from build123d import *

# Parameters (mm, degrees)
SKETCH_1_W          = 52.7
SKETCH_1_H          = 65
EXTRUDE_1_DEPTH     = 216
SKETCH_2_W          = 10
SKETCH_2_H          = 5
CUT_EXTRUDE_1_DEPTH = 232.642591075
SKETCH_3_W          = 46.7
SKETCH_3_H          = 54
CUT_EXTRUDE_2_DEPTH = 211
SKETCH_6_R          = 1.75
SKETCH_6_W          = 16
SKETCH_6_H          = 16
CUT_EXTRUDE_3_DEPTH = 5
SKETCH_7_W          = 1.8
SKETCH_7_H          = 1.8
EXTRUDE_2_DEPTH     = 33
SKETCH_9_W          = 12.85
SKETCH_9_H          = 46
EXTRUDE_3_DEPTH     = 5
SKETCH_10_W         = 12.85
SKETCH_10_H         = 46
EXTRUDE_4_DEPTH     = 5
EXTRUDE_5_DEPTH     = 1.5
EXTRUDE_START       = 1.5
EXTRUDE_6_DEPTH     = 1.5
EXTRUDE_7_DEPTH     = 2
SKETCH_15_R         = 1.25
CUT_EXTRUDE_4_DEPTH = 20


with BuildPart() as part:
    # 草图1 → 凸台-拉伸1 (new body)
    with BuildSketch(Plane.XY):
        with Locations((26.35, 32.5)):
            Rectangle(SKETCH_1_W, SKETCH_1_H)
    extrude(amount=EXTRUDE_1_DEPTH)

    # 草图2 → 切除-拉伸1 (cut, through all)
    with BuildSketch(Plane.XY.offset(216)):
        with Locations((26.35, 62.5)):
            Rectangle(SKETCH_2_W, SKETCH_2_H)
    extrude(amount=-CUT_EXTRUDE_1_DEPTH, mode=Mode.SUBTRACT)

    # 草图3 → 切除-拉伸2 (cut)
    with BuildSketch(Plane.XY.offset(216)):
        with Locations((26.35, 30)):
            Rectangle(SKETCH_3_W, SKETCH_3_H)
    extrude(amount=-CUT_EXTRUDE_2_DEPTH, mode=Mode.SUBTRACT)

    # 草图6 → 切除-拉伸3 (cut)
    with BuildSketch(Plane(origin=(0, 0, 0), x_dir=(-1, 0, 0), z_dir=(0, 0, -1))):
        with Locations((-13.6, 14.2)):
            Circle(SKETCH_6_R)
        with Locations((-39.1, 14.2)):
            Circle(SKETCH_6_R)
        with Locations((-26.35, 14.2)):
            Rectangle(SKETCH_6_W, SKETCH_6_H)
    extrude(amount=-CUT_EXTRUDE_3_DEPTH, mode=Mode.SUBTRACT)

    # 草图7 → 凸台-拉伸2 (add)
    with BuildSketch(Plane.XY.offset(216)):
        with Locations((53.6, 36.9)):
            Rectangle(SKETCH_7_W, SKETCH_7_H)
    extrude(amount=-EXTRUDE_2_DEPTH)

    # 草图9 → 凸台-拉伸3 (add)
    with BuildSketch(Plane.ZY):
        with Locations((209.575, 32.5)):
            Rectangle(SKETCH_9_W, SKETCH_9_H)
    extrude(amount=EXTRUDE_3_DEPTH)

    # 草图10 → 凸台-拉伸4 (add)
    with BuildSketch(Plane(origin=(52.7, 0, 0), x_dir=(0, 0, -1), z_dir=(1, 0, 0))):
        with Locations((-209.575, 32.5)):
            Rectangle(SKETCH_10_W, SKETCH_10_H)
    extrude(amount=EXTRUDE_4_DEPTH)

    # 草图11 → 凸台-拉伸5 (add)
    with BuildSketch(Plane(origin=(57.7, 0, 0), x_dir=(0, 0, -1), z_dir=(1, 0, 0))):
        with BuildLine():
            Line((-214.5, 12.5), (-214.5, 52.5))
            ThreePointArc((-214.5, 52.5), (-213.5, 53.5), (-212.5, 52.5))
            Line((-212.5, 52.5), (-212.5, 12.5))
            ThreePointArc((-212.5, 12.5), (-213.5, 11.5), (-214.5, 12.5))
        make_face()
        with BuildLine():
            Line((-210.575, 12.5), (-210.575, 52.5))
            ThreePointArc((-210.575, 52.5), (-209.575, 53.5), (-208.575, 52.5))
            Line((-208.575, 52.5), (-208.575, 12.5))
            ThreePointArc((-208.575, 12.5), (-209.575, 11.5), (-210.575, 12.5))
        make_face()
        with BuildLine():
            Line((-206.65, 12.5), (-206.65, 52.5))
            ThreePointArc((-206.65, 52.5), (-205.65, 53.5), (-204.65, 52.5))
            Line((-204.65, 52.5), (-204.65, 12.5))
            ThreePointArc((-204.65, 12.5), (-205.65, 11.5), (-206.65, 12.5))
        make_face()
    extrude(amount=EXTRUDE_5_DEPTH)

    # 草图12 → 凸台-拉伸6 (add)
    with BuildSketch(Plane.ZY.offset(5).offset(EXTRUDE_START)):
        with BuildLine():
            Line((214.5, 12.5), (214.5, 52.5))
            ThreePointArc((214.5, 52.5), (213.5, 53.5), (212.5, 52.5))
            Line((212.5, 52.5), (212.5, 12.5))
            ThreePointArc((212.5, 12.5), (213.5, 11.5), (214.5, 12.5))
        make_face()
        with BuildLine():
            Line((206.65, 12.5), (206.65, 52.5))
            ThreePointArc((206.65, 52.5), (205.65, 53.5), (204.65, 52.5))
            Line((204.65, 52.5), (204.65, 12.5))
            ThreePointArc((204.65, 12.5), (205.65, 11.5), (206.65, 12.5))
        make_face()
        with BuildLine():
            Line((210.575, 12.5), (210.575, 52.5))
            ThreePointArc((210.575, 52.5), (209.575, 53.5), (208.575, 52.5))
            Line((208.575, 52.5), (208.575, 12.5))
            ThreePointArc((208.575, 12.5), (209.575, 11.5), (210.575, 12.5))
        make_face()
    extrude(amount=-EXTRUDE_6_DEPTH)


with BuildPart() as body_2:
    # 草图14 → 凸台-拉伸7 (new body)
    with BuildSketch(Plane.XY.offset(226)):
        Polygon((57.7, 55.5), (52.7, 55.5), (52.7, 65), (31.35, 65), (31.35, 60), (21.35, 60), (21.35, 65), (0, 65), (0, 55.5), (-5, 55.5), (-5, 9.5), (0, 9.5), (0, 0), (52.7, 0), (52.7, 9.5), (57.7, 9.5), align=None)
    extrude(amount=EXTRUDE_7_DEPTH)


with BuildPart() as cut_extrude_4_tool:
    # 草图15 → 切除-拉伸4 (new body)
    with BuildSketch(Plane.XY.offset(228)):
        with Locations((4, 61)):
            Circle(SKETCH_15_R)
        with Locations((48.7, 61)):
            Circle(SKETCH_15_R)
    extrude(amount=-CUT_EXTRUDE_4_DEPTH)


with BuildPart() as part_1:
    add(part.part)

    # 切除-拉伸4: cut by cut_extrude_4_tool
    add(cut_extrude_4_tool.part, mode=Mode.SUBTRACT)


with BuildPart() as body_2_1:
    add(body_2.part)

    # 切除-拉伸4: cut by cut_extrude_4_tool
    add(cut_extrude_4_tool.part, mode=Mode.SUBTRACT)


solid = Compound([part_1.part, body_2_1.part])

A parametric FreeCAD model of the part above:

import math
import FreeCAD as App
import Part
import Sketcher

V = App.Vector

doc = App.newDocument("Part")
body = doc.addObject("PartDesign::Body", "Body")

# Sketch on XY plane
sketch1 = body.newObject("Sketcher::SketchObject", "Sketch")
sketch1.AttachmentSupport = (doc.getObject("XY_Plane"), [""])
sketch1.MapMode = "FlatFace"
sketch1.addGeometry(Part.LineSegment(V(0, 65, 0), V(0, 0, 0)), False)
sketch1.addGeometry(Part.LineSegment(V(0, 0, 0), V(52.7, 0, 0)), False)
sketch1.addGeometry(Part.LineSegment(V(52.7, 0, 0), V(52.7, 65, 0)), False)
sketch1.addGeometry(Part.LineSegment(V(52.7, 65, 0), V(0, 65, 0)), False)
sketch1.addConstraint(Sketcher.Constraint("Coincident", 0, 2, 1, 1))
sketch1.addConstraint(Sketcher.Constraint("Coincident", 1, 2, 2, 1))
sketch1.addConstraint(Sketcher.Constraint("Coincident", 2, 2, 3, 1))
sketch1.addConstraint(Sketcher.Constraint("Coincident", 3, 2, 0, 1))
sketch1.addConstraint(Sketcher.Constraint("Vertical", 0))
sketch1.addConstraint(Sketcher.Constraint("Horizontal", 1))
sketch1.addConstraint(Sketcher.Constraint("Vertical", 2))
sketch1.addConstraint(Sketcher.Constraint("Horizontal", 3))
sketch1.addConstraint(Sketcher.Constraint("Coincident", 0, 2, -1, 1))
sketch1.addConstraint(Sketcher.Constraint("DistanceY", 0, 2, 0, 1, 65.0))
sketch1.addConstraint(Sketcher.Constraint("DistanceX", 1, 1, 1, 2, 52.7))
pad1 = body.newObject("PartDesign::Pad", "Pad")
pad1.Profile = sketch1
pad1.Length = 216

# Sketch on XY plane
sketch2 = body.newObject("Sketcher::SketchObject", "Sketch001")
sketch2.AttachmentSupport = (doc.getObject("XY_Plane"), [""])
sketch2.MapMode = "FlatFace"
sketch2.AttachmentOffset = App.Placement(V(0, 0, 216), App.Rotation())
sketch2.addGeometry(Part.LineSegment(V(21.35, 65, 0), V(21.35, 60, 0)), False)
sketch2.addGeometry(Part.LineSegment(V(21.35, 60, 0), V(31.35, 60, 0)), False)
sketch2.addGeometry(Part.LineSegment(V(31.35, 60, 0), V(31.35, 65, 0)), False)
sketch2.addGeometry(Part.LineSegment(V(31.35, 65, 0), V(21.35, 65, 0)), False)
sketch2.addConstraint(Sketcher.Constraint("Coincident", 0, 2, 1, 1))
sketch2.addConstraint(Sketcher.Constraint("Coincident", 1, 2, 2, 1))
sketch2.addConstraint(Sketcher.Constraint("Coincident", 2, 2, 3, 1))
sketch2.addConstraint(Sketcher.Constraint("Coincident", 3, 2, 0, 1))
sketch2.addConstraint(Sketcher.Constraint("Vertical", 0))
sketch2.addConstraint(Sketcher.Constraint("Horizontal", 1))
sketch2.addConstraint(Sketcher.Constraint("Vertical", 2))
sketch2.addConstraint(Sketcher.Constraint("Horizontal", 3))
sketch2.addConstraint(Sketcher.Constraint("DistanceX", 1, 1, 1, 2, 10.0))
sketch2.addConstraint(Sketcher.Constraint("DistanceY", 0, 2, 0, 1, 5.0))
sketch2.addConstraint(Sketcher.Constraint("DistanceY", -1, 1, 0, 2, 60.0))
sketch2.addConstraint(Sketcher.Constraint("DistanceX", -1, 1, 0, 2, 21.35))
pocket1 = body.newObject("PartDesign::Pocket", "Pocket")
pocket1.Profile = sketch2
pocket1.Type = "ThroughAll"

# Sketch on XY plane
sketch3 = body.newObject("Sketcher::SketchObject", "Sketch002")
sketch3.AttachmentSupport = (doc.getObject("XY_Plane"), [""])
sketch3.MapMode = "FlatFace"
sketch3.AttachmentOffset = App.Placement(V(0, 0, 216), App.Rotation())
sketch3.addGeometry(Part.LineSegment(V(3, 57, 0), V(3, 3, 0)), False)
sketch3.addGeometry(Part.LineSegment(V(3, 3, 0), V(49.7, 3, 0)), False)
sketch3.addGeometry(Part.LineSegment(V(49.7, 3, 0), V(49.7, 57, 0)), False)
sketch3.addGeometry(Part.LineSegment(V(49.7, 57, 0), V(3, 57, 0)), False)
sketch3.addConstraint(Sketcher.Constraint("Coincident", 0, 2, 1, 1))
sketch3.addConstraint(Sketcher.Constraint("Coincident", 1, 2, 2, 1))
sketch3.addConstraint(Sketcher.Constraint("Coincident", 2, 2, 3, 1))
sketch3.addConstraint(Sketcher.Constraint("Coincident", 3, 2, 0, 1))
sketch3.addConstraint(Sketcher.Constraint("Vertical", 0))
sketch3.addConstraint(Sketcher.Constraint("Horizontal", 1))
sketch3.addConstraint(Sketcher.Constraint("Vertical", 2))
sketch3.addConstraint(Sketcher.Constraint("Horizontal", 3))
sketch3.addConstraint(Sketcher.Constraint("DistanceY", 0, 2, 0, 1, 54.0))
sketch3.addConstraint(Sketcher.Constraint("DistanceX", 1, 1, 1, 2, 46.7))
sketch3.addConstraint(Sketcher.Constraint("DistanceX", -1, 1, 0, 2, 3.0))
sketch3.addConstraint(Sketcher.Constraint("DistanceY", -1, 1, 0, 2, 3.0))
pocket2 = body.newObject("PartDesign::Pocket", "Pocket001")
pocket2.Profile = sketch3
pocket2.Length = 211

# Sketch on XY plane
sketch4 = body.newObject("Sketcher::SketchObject", "Sketch003")
sketch4.AttachmentSupport = (doc.getObject("XY_Plane"), [""])
sketch4.MapMode = "FlatFace"
sketch4.addGeometry(Part.Circle(V(13.6, 14.2, 0), V(0, 0, 1), 1.75), False)
sketch4.addGeometry(Part.Circle(V(39.1, 14.2, 0), V(0, 0, 1), 1.75), False)
sketch4.addGeometry(Part.LineSegment(V(34.35, 22.2, 0), V(34.35, 6.2, 0)), False)
sketch4.addGeometry(Part.LineSegment(V(34.35, 6.2, 0), V(18.35, 6.2, 0)), False)
sketch4.addGeometry(Part.LineSegment(V(18.35, 6.2, 0), V(18.35, 22.2, 0)), False)
sketch4.addGeometry(Part.LineSegment(V(18.35, 22.2, 0), V(34.35, 22.2, 0)), False)
sketch4.addConstraint(Sketcher.Constraint("Coincident", 2, 2, 3, 1))
sketch4.addConstraint(Sketcher.Constraint("Coincident", 3, 2, 4, 1))
sketch4.addConstraint(Sketcher.Constraint("Coincident", 4, 2, 5, 1))
sketch4.addConstraint(Sketcher.Constraint("Coincident", 5, 2, 2, 1))
sketch4.addConstraint(Sketcher.Constraint("Vertical", 2))
sketch4.addConstraint(Sketcher.Constraint("Horizontal", 3))
sketch4.addConstraint(Sketcher.Constraint("Vertical", 4))
sketch4.addConstraint(Sketcher.Constraint("Horizontal", 5))
sketch4.addConstraint(Sketcher.Constraint("Equal", 0, 1))
sketch4.addConstraint(Sketcher.Constraint("Horizontal", 0, 3, 1, 3))
sketch4.addConstraint(Sketcher.Constraint("Equal", 5, 2))
sketch4.addConstraint(Sketcher.Constraint("Diameter", 0, 3.5))
sketch4.addConstraint(Sketcher.Constraint("DistanceX", 3, 2, 3, 1, 16.0))
sketch4.addConstraint(Sketcher.Constraint("DistanceY", 2, 2, 1, 3, 8.0))
sketch4.addConstraint(Sketcher.Constraint("DistanceX", -1, 1, 0, 3, 13.6))
sketch4.addConstraint(Sketcher.Constraint("DistanceY", -1, 1, 0, 3, 14.2))
sketch4.addConstraint(Sketcher.Constraint("DistanceX", -1, 1, 1, 3, 39.1))
sketch4.addConstraint(Sketcher.Constraint("DistanceX", -1, 1, 2, 2, 34.35))
pocket3 = body.newObject("PartDesign::Pocket", "Pocket002")
pocket3.Profile = sketch4
pocket3.Length = 5
pocket3.Reversed = True

# Sketch on XY plane
sketch5 = body.newObject("Sketcher::SketchObject", "Sketch004")
sketch5.AttachmentSupport = (doc.getObject("XY_Plane"), [""])
sketch5.MapMode = "FlatFace"
sketch5.AttachmentOffset = App.Placement(V(0, 0, 216), App.Rotation())
sketch5.addGeometry(Part.LineSegment(V(52.7, 37.8, 0), V(52.7, 36, 0)), False)
sketch5.addGeometry(Part.LineSegment(V(52.7, 36, 0), V(54.5, 36, 0)), False)
sketch5.addGeometry(Part.LineSegment(V(54.5, 36, 0), V(54.5, 37.8, 0)), False)
sketch5.addGeometry(Part.LineSegment(V(54.5, 37.8, 0), V(52.7, 37.8, 0)), False)
sketch5.addConstraint(Sketcher.Constraint("Coincident", 0, 2, 1, 1))
sketch5.addConstraint(Sketcher.Constraint("Coincident", 1, 2, 2, 1))
sketch5.addConstraint(Sketcher.Constraint("Coincident", 2, 2, 3, 1))
sketch5.addConstraint(Sketcher.Constraint("Coincident", 3, 2, 0, 1))
sketch5.addConstraint(Sketcher.Constraint("Vertical", 0))
sketch5.addConstraint(Sketcher.Constraint("Horizontal", 1))
sketch5.addConstraint(Sketcher.Constraint("Vertical", 2))
sketch5.addConstraint(Sketcher.Constraint("Horizontal", 3))
sketch5.addConstraint(Sketcher.Constraint("Equal", 3, 0))
sketch5.addConstraint(Sketcher.Constraint("DistanceX", 1, 1, 1, 2, 1.8))
sketch5.addConstraint(Sketcher.Constraint("DistanceY", -1, 1, 0, 2, 36.0))
sketch5.addConstraint(Sketcher.Constraint("DistanceX", -1, 1, 0, 2, 52.7))
pad2 = body.newObject("PartDesign::Pad", "Pad001")
pad2.Profile = sketch5
pad2.Length = 33
pad2.Reversed = True

# Sketch on YZ plane
sketch6 = body.newObject("Sketcher::SketchObject", "Sketch005")
sketch6.AttachmentSupport = (doc.getObject("YZ_Plane"), [""])
sketch6.MapMode = "FlatFace"
sketch6.addGeometry(Part.LineSegment(V(55.5, 203.15, 0), V(9.5, 203.15, 0)), False)
sketch6.addGeometry(Part.LineSegment(V(9.5, 203.15, 0), V(9.5, 216, 0)), False)
sketch6.addGeometry(Part.LineSegment(V(9.5, 216, 0), V(55.5, 216, 0)), False)
sketch6.addGeometry(Part.LineSegment(V(55.5, 216, 0), V(55.5, 203.15, 0)), False)
sketch6.addConstraint(Sketcher.Constraint("Coincident", 0, 2, 1, 1))
sketch6.addConstraint(Sketcher.Constraint("Coincident", 1, 2, 2, 1))
sketch6.addConstraint(Sketcher.Constraint("Coincident", 2, 2, 3, 1))
sketch6.addConstraint(Sketcher.Constraint("Coincident", 3, 2, 0, 1))
sketch6.addConstraint(Sketcher.Constraint("Horizontal", 0))
sketch6.addConstraint(Sketcher.Constraint("Vertical", 1))
sketch6.addConstraint(Sketcher.Constraint("Horizontal", 2))
sketch6.addConstraint(Sketcher.Constraint("Vertical", 3))
sketch6.addConstraint(Sketcher.Constraint("DistanceX", 0, 2, 0, 1, 46.0))
sketch6.addConstraint(Sketcher.Constraint("DistanceY", -1, 1, 1, 2, 216.0))
sketch6.addConstraint(Sketcher.Constraint("DistanceY", 1, 1, 1, 2, 12.85))
sketch6.addConstraint(Sketcher.Constraint("DistanceX", -1, 1, 0, 2, 9.5))
pad3 = body.newObject("PartDesign::Pad", "Pad002")
pad3.Profile = sketch6
pad3.Length = 5
pad3.Reversed = True

# Sketch on YZ plane
sketch7 = body.newObject("Sketcher::SketchObject", "Sketch006")
sketch7.AttachmentSupport = (doc.getObject("YZ_Plane"), [""])
sketch7.MapMode = "FlatFace"
sketch7.AttachmentOffset = App.Placement(V(0, 0, 52.7), App.Rotation())
sketch7.addGeometry(Part.LineSegment(V(55.5, 216, 0), V(9.5, 216, 0)), False)
sketch7.addGeometry(Part.LineSegment(V(9.5, 216, 0), V(9.5, 203.15, 0)), False)
sketch7.addGeometry(Part.LineSegment(V(9.5, 203.15, 0), V(55.5, 203.15, 0)), False)
sketch7.addGeometry(Part.LineSegment(V(55.5, 203.15, 0), V(55.5, 216, 0)), False)
sketch7.addConstraint(Sketcher.Constraint("Coincident", 0, 2, 1, 1))
sketch7.addConstraint(Sketcher.Constraint("Coincident", 1, 2, 2, 1))
sketch7.addConstraint(Sketcher.Constraint("Coincident", 2, 2, 3, 1))
sketch7.addConstraint(Sketcher.Constraint("Coincident", 3, 2, 0, 1))
sketch7.addConstraint(Sketcher.Constraint("Horizontal", 0))
sketch7.addConstraint(Sketcher.Constraint("Vertical", 1))
sketch7.addConstraint(Sketcher.Constraint("Horizontal", 2))
sketch7.addConstraint(Sketcher.Constraint("Vertical", 3))
sketch7.addConstraint(Sketcher.Constraint("DistanceX", 0, 2, 0, 1, 46.0))
sketch7.addConstraint(Sketcher.Constraint("DistanceY", -1, 1, 0, 2, 216.0))
sketch7.addConstraint(Sketcher.Constraint("DistanceY", 1, 2, 1, 1, 12.85))
sketch7.addConstraint(Sketcher.Constraint("DistanceX", -1, 1, 0, 2, 9.5))
pad4 = body.newObject("PartDesign::Pad", "Pad003")
pad4.Profile = sketch7
pad4.Length = 5

# Sketch on YZ plane
sketch8 = body.newObject("Sketcher::SketchObject", "Sketch007")
sketch8.AttachmentSupport = (doc.getObject("YZ_Plane"), [""])
sketch8.MapMode = "FlatFace"
sketch8.AttachmentOffset = App.Placement(V(0, 0, 57.7), App.Rotation())
sketch8.addGeometry(Part.LineSegment(V(52.5, 214.5, 0), V(12.5, 214.5, 0)), False)
sketch8.addGeometry(Part.ArcOfCircle(Part.Circle(V(12.5, 213.5, 0), V(0, 0, 1), 1), math.radians(90), math.radians(270)), False)
sketch8.addGeometry(Part.LineSegment(V(12.5, 212.5, 0), V(52.5, 212.5, 0)), False)
sketch8.addGeometry(Part.ArcOfCircle(Part.Circle(V(52.5, 213.5, 0), V(0, 0, 1), 1), math.radians(-90), math.radians(90)), False)
sketch8.addGeometry(Part.LineSegment(V(52.5, 210.575, 0), V(12.5, 210.575, 0)), False)
sketch8.addGeometry(Part.ArcOfCircle(Part.Circle(V(12.5, 209.575, 0), V(0, 0, 1), 1), math.radians(90), math.radians(270)), False)
sketch8.addGeometry(Part.LineSegment(V(12.5, 208.575, 0), V(52.5, 208.575, 0)), False)
sketch8.addGeometry(Part.ArcOfCircle(Part.Circle(V(52.5, 209.575, 0), V(0, 0, 1), 1), math.radians(-90), math.radians(90)), False)
sketch8.addGeometry(Part.LineSegment(V(52.5, 206.65, 0), V(12.5, 206.65, 0)), False)
sketch8.addGeometry(Part.ArcOfCircle(Part.Circle(V(12.5, 205.65, 0), V(0, 0, 1), 1), math.radians(90), math.radians(270)), False)
sketch8.addGeometry(Part.LineSegment(V(12.5, 204.65, 0), V(52.5, 204.65, 0)), False)
sketch8.addGeometry(Part.ArcOfCircle(Part.Circle(V(52.5, 205.65, 0), V(0, 0, 1), 1), math.radians(-90), math.radians(90)), False)
sketch8.addConstraint(Sketcher.Constraint("Tangent", 0, 2, 1, 1))
sketch8.addConstraint(Sketcher.Constraint("Tangent", 1, 2, 2, 1))
sketch8.addConstraint(Sketcher.Constraint("Tangent", 2, 2, 3, 1))
sketch8.addConstraint(Sketcher.Constraint("Tangent", 3, 2, 0, 1))
sketch8.addConstraint(Sketcher.Constraint("Tangent", 4, 2, 5, 1))
sketch8.addConstraint(Sketcher.Constraint("Tangent", 5, 2, 6, 1))
sketch8.addConstraint(Sketcher.Constraint("Tangent", 6, 2, 7, 1))
sketch8.addConstraint(Sketcher.Constraint("Tangent", 7, 2, 4, 1))
sketch8.addConstraint(Sketcher.Constraint("Tangent", 8, 2, 9, 1))
sketch8.addConstraint(Sketcher.Constraint("Tangent", 9, 2, 10, 1))
sketch8.addConstraint(Sketcher.Constraint("Tangent", 10, 2, 11, 1))
sketch8.addConstraint(Sketcher.Constraint("Tangent", 11, 2, 8, 1))
sketch8.addConstraint(Sketcher.Constraint("Horizontal", 0))
sketch8.addConstraint(Sketcher.Constraint("Horizontal", 2))
sketch8.addConstraint(Sketcher.Constraint("Horizontal", 4))
sketch8.addConstraint(Sketcher.Constraint("Horizontal", 6))
sketch8.addConstraint(Sketcher.Constraint("Horizontal", 8))
sketch8.addConstraint(Sketcher.Constraint("Horizontal", 10))
sketch8.addConstraint(Sketcher.Constraint("Equal", 3, 5))
sketch8.addConstraint(Sketcher.Constraint("Equal", 7, 9))
sketch8.addConstraint(Sketcher.Constraint("Vertical", 1, 3, 5, 3))
sketch8.addConstraint(Sketcher.Constraint("Vertical", 3, 3, 7, 3))
sketch8.addConstraint(Sketcher.Constraint("Vertical", 5, 3, 9, 3))
sketch8.addConstraint(Sketcher.Constraint("Vertical", 7, 3, 11, 3))
sketch8.addConstraint(Sketcher.Constraint("Radius", 1, 1.0))
sketch8.addConstraint(Sketcher.Constraint("DistanceX", 0, 2, 0, 1, 40.0))
sketch8.addConstraint(Sketcher.Constraint("DistanceX", -1, 1, 1, 3, 12.5))
sketch8.addConstraint(Sketcher.Constraint("DistanceY", -1, 1, 1, 3, 213.5))
sketch8.addConstraint(Sketcher.Constraint("DistanceY", -1, 1, 9, 3, 205.65))
sketch8.addConstraint(Sketcher.Constraint("DistanceY", -1, 1, 5, 3, 209.575))
pad5 = body.newObject("PartDesign::Pad", "Pad004")
pad5.Profile = sketch8
pad5.Length = 1.5

# Sketch on YZ plane
sketch9 = body.newObject("Sketcher::SketchObject", "Sketch008")
sketch9.AttachmentSupport = (doc.getObject("YZ_Plane"), [""])
sketch9.MapMode = "FlatFace"
sketch9.AttachmentOffset = App.Placement(V(0, 0, -6.5), App.Rotation())
sketch9.addGeometry(Part.LineSegment(V(12.5, 214.5, 0), V(52.5, 214.5, 0)), False)
sketch9.addGeometry(Part.ArcOfCircle(Part.Circle(V(52.5, 213.5, 0), V(0, 0, 1), 1), math.radians(-90), math.radians(90)), False)
sketch9.addGeometry(Part.LineSegment(V(52.5, 212.5, 0), V(12.5, 212.5, 0)), False)
sketch9.addGeometry(Part.ArcOfCircle(Part.Circle(V(12.5, 213.5, 0), V(0, 0, 1), 1), math.radians(90), math.radians(270)), False)
sketch9.addGeometry(Part.LineSegment(V(12.5, 206.65, 0), V(52.5, 206.65, 0)), False)
sketch9.addGeometry(Part.ArcOfCircle(Part.Circle(V(52.5, 205.65, 0), V(0, 0, 1), 1), math.radians(-90), math.radians(90)), False)
sketch9.addGeometry(Part.LineSegment(V(52.5, 204.65, 0), V(12.5, 204.65, 0)), False)
sketch9.addGeometry(Part.ArcOfCircle(Part.Circle(V(12.5, 205.65, 0), V(0, 0, 1), 1), math.radians(90), math.radians(270)), False)
sketch9.addGeometry(Part.LineSegment(V(12.5, 210.575, 0), V(52.5, 210.575, 0)), False)
sketch9.addGeometry(Part.ArcOfCircle(Part.Circle(V(52.5, 209.575, 0), V(0, 0, 1), 1), math.radians(-90), math.radians(90)), False)
sketch9.addGeometry(Part.LineSegment(V(52.5, 208.575, 0), V(12.5, 208.575, 0)), False)
sketch9.addGeometry(Part.ArcOfCircle(Part.Circle(V(12.5, 209.575, 0), V(0, 0, 1), 1), math.radians(90), math.radians(270)), False)
sketch9.addConstraint(Sketcher.Constraint("Tangent", 0, 2, 1, 2))
sketch9.addConstraint(Sketcher.Constraint("Tangent", 1, 1, 2, 1))
sketch9.addConstraint(Sketcher.Constraint("Tangent", 2, 2, 3, 2))
sketch9.addConstraint(Sketcher.Constraint("Tangent", 3, 1, 0, 1))
sketch9.addConstraint(Sketcher.Constraint("Tangent", 4, 2, 5, 2))
sketch9.addConstraint(Sketcher.Constraint("Tangent", 5, 1, 6, 1))
sketch9.addConstraint(Sketcher.Constraint("Tangent", 6, 2, 7, 2))
sketch9.addConstraint(Sketcher.Constraint("Tangent", 7, 1, 4, 1))
sketch9.addConstraint(Sketcher.Constraint("Tangent", 8, 2, 9, 2))
sketch9.addConstraint(Sketcher.Constraint("Tangent", 9, 1, 10, 1))
sketch9.addConstraint(Sketcher.Constraint("Tangent", 10, 2, 11, 2))
sketch9.addConstraint(Sketcher.Constraint("Tangent", 11, 1, 8, 1))
sketch9.addConstraint(Sketcher.Constraint("Horizontal", 0))
sketch9.addConstraint(Sketcher.Constraint("Horizontal", 2))
sketch9.addConstraint(Sketcher.Constraint("Horizontal", 4))
sketch9.addConstraint(Sketcher.Constraint("Horizontal", 6))
sketch9.addConstraint(Sketcher.Constraint("Horizontal", 8))
sketch9.addConstraint(Sketcher.Constraint("Horizontal", 10))
sketch9.addConstraint(Sketcher.Constraint("Equal", 3, 5))
sketch9.addConstraint(Sketcher.Constraint("Equal", 7, 9))
sketch9.addConstraint(Sketcher.Constraint("Vertical", 1, 3, 5, 3))
sketch9.addConstraint(Sketcher.Constraint("Vertical", 3, 3, 7, 3))
sketch9.addConstraint(Sketcher.Constraint("Vertical", 5, 3, 9, 3))
sketch9.addConstraint(Sketcher.Constraint("Vertical", 7, 3, 11, 3))
sketch9.addConstraint(Sketcher.Constraint("Radius", 1, 1.0))
sketch9.addConstraint(Sketcher.Constraint("DistanceX", 0, 1, 0, 2, 40.0))
sketch9.addConstraint(Sketcher.Constraint("DistanceX", -1, 1, 1, 3, 52.5))
sketch9.addConstraint(Sketcher.Constraint("DistanceY", -1, 1, 1, 3, 213.5))
sketch9.addConstraint(Sketcher.Constraint("DistanceY", -1, 1, 5, 3, 205.65))
sketch9.addConstraint(Sketcher.Constraint("DistanceY", -1, 1, 9, 3, 209.575))
pad6 = body.newObject("PartDesign::Pad", "Pad005")
pad6.Profile = sketch9
pad6.Length = 1.5
body2 = doc.addObject("PartDesign::Body", "Body001")

# Sketch on XY plane
sketch10 = body2.newObject("Sketcher::SketchObject", "Sketch009")
sketch10.AttachmentSupport = (doc.getObject("XY_Plane001"), [""])
sketch10.MapMode = "FlatFace"
sketch10.AttachmentOffset = App.Placement(V(0, 0, 226), App.Rotation())
sketch10.addGeometry(Part.LineSegment(V(57.7, 55.5, 0), V(52.7, 55.5, 0)), False)
sketch10.addGeometry(Part.LineSegment(V(52.7, 55.5, 0), V(52.7, 65, 0)), False)
sketch10.addGeometry(Part.LineSegment(V(52.7, 65, 0), V(31.35, 65, 0)), False)
sketch10.addGeometry(Part.LineSegment(V(31.35, 65, 0), V(31.35, 60, 0)), False)
sketch10.addGeometry(Part.LineSegment(V(31.35, 60, 0), V(21.35, 60, 0)), False)
sketch10.addGeometry(Part.LineSegment(V(21.35, 60, 0), V(21.35, 65, 0)), False)
sketch10.addGeometry(Part.LineSegment(V(21.35, 65, 0), V(0, 65, 0)), False)
sketch10.addGeometry(Part.LineSegment(V(0, 65, 0), V(0, 55.5, 0)), False)
sketch10.addGeometry(Part.LineSegment(V(0, 55.5, 0), V(-5, 55.5, 0)), False)
sketch10.addGeometry(Part.LineSegment(V(-5, 55.5, 0), V(-5, 9.5, 0)), False)
sketch10.addGeometry(Part.LineSegment(V(-5, 9.5, 0), V(0, 9.5, 0)), False)
sketch10.addGeometry(Part.LineSegment(V(0, 9.5, 0), V(0, 0, 0)), False)
sketch10.addGeometry(Part.LineSegment(V(0, 0, 0), V(52.7, 0, 0)), False)
sketch10.addGeometry(Part.LineSegment(V(52.7, 0, 0), V(52.7, 9.5, 0)), False)
sketch10.addGeometry(Part.LineSegment(V(52.7, 9.5, 0), V(57.7, 9.5, 0)), False)
sketch10.addGeometry(Part.LineSegment(V(57.7, 9.5, 0), V(57.7, 55.5, 0)), False)
sketch10.addConstraint(Sketcher.Constraint("Coincident", 0, 2, 1, 1))
sketch10.addConstraint(Sketcher.Constraint("Coincident", 1, 2, 2, 1))
sketch10.addConstraint(Sketcher.Constraint("Coincident", 2, 2, 3, 1))
sketch10.addConstraint(Sketcher.Constraint("Coincident", 3, 2, 4, 1))
sketch10.addConstraint(Sketcher.Constraint("Coincident", 4, 2, 5, 1))
sketch10.addConstraint(Sketcher.Constraint("Coincident", 5, 2, 6, 1))
sketch10.addConstraint(Sketcher.Constraint("Coincident", 6, 2, 7, 1))
sketch10.addConstraint(Sketcher.Constraint("Coincident", 7, 2, 8, 1))
sketch10.addConstraint(Sketcher.Constraint("Coincident", 8, 2, 9, 1))
sketch10.addConstraint(Sketcher.Constraint("Coincident", 9, 2, 10, 1))
sketch10.addConstraint(Sketcher.Constraint("Coincident", 10, 2, 11, 1))
sketch10.addConstraint(Sketcher.Constraint("Coincident", 11, 2, 12, 1))
sketch10.addConstraint(Sketcher.Constraint("Coincident", 12, 2, 13, 1))
sketch10.addConstraint(Sketcher.Constraint("Coincident", 13, 2, 14, 1))
sketch10.addConstraint(Sketcher.Constraint("Coincident", 14, 2, 15, 1))
sketch10.addConstraint(Sketcher.Constraint("Coincident", 15, 2, 0, 1))
sketch10.addConstraint(Sketcher.Constraint("Horizontal", 0))
sketch10.addConstraint(Sketcher.Constraint("Vertical", 1))
sketch10.addConstraint(Sketcher.Constraint("Horizontal", 2))
sketch10.addConstraint(Sketcher.Constraint("Vertical", 3))
sketch10.addConstraint(Sketcher.Constraint("Horizontal", 4))
sketch10.addConstraint(Sketcher.Constraint("Vertical", 5))
sketch10.addConstraint(Sketcher.Constraint("Horizontal", 6))
sketch10.addConstraint(Sketcher.Constraint("Vertical", 7))
sketch10.addConstraint(Sketcher.Constraint("Horizontal", 8))
sketch10.addConstraint(Sketcher.Constraint("Vertical", 9))
sketch10.addConstraint(Sketcher.Constraint("Horizontal", 10))
sketch10.addConstraint(Sketcher.Constraint("Vertical", 11))
sketch10.addConstraint(Sketcher.Constraint("Horizontal", 12))
sketch10.addConstraint(Sketcher.Constraint("Vertical", 13))
sketch10.addConstraint(Sketcher.Constraint("Horizontal", 14))
sketch10.addConstraint(Sketcher.Constraint("Vertical", 15))
sketch10.addConstraint(Sketcher.Constraint("Coincident", 11, 2, -1, 1))
sketch10.addConstraint(Sketcher.Constraint("PointOnObject", 6, 2, -2))
sketch10.addConstraint(Sketcher.Constraint("Horizontal", 2, 2, 5, 2))
sketch10.addConstraint(Sketcher.Constraint("Horizontal", 0, 2, 7, 2))
sketch10.addConstraint(Sketcher.Constraint("Horizontal", 10, 2, 13, 2))
sketch10.addConstraint(Sketcher.Constraint("Vertical", 1, 2, 12, 2))
sketch10.addConstraint(Sketcher.Constraint("Equal", 2, 6))
sketch10.addConstraint(Sketcher.Constraint("Equal", 0, 8))
sketch10.addConstraint(Sketcher.Constraint("Equal", 14, 3))
sketch10.addConstraint(Sketcher.Constraint("Equal", 7, 11))
sketch10.addConstraint(Sketcher.Constraint("DistanceX", 0, 2, 0, 1, 5.0))
sketch10.addConstraint(Sketcher.Constraint("DistanceX", 4, 2, 4, 1, 10.0))
sketch10.addConstraint(Sketcher.Constraint("DistanceY", 9, 2, 9, 1, 46.0))
sketch10.addConstraint(Sketcher.Constraint("DistanceX", 12, 1, 12, 2, 52.7))
sketch10.addConstraint(Sketcher.Constraint("DistanceY", 1, 1, 1, 2, 9.5))
pad7 = body2.newObject("PartDesign::Pad", "Pad006")
pad7.Profile = sketch10
pad7.Length = 2
body3 = doc.addObject("PartDesign::Body", "Body002")
body3.AllowCompound = True

# Sketch on XY plane
sketch11 = body3.newObject("Sketcher::SketchObject", "Sketch010")
sketch11.AttachmentSupport = (doc.getObject("XY_Plane002"), [""])
sketch11.MapMode = "FlatFace"
sketch11.AttachmentOffset = App.Placement(V(0, 0, 228), App.Rotation())
sketch11.addGeometry(Part.Circle(V(4, 61, 0), V(0, 0, 1), 1.25), False)
sketch11.addGeometry(Part.Circle(V(48.7, 61, 0), V(0, 0, 1), 1.25), False)
sketch11.addConstraint(Sketcher.Constraint("Equal", 0, 1))
sketch11.addConstraint(Sketcher.Constraint("Horizontal", 0, 3, 1, 3))
sketch11.addConstraint(Sketcher.Constraint("Diameter", 0, 2.5))
sketch11.addConstraint(Sketcher.Constraint("DistanceX", -1, 1, 0, 3, 4.0))
sketch11.addConstraint(Sketcher.Constraint("DistanceY", -1, 1, 0, 3, 61.0))
sketch11.addConstraint(Sketcher.Constraint("DistanceX", -1, 1, 1, 3, 48.7))
pad8 = body3.newObject("PartDesign::Pad", "Pad007")
pad8.Profile = sketch11
pad8.Length = 20
pad8.Reversed = True
doc.recompute()

body4 = doc.addObject("PartDesign::Body", "Body003")
body4.BaseFeature = body3
boolean = body.newObject("PartDesign::Boolean", "Boolean")
boolean.Type = "Cut"
boolean.addObjects([body4])
doc.recompute()

boolean2 = body2.newObject("PartDesign::Boolean", "Boolean001")
boolean2.Type = "Cut"
boolean2.addObjects([body3])

doc.recompute()
